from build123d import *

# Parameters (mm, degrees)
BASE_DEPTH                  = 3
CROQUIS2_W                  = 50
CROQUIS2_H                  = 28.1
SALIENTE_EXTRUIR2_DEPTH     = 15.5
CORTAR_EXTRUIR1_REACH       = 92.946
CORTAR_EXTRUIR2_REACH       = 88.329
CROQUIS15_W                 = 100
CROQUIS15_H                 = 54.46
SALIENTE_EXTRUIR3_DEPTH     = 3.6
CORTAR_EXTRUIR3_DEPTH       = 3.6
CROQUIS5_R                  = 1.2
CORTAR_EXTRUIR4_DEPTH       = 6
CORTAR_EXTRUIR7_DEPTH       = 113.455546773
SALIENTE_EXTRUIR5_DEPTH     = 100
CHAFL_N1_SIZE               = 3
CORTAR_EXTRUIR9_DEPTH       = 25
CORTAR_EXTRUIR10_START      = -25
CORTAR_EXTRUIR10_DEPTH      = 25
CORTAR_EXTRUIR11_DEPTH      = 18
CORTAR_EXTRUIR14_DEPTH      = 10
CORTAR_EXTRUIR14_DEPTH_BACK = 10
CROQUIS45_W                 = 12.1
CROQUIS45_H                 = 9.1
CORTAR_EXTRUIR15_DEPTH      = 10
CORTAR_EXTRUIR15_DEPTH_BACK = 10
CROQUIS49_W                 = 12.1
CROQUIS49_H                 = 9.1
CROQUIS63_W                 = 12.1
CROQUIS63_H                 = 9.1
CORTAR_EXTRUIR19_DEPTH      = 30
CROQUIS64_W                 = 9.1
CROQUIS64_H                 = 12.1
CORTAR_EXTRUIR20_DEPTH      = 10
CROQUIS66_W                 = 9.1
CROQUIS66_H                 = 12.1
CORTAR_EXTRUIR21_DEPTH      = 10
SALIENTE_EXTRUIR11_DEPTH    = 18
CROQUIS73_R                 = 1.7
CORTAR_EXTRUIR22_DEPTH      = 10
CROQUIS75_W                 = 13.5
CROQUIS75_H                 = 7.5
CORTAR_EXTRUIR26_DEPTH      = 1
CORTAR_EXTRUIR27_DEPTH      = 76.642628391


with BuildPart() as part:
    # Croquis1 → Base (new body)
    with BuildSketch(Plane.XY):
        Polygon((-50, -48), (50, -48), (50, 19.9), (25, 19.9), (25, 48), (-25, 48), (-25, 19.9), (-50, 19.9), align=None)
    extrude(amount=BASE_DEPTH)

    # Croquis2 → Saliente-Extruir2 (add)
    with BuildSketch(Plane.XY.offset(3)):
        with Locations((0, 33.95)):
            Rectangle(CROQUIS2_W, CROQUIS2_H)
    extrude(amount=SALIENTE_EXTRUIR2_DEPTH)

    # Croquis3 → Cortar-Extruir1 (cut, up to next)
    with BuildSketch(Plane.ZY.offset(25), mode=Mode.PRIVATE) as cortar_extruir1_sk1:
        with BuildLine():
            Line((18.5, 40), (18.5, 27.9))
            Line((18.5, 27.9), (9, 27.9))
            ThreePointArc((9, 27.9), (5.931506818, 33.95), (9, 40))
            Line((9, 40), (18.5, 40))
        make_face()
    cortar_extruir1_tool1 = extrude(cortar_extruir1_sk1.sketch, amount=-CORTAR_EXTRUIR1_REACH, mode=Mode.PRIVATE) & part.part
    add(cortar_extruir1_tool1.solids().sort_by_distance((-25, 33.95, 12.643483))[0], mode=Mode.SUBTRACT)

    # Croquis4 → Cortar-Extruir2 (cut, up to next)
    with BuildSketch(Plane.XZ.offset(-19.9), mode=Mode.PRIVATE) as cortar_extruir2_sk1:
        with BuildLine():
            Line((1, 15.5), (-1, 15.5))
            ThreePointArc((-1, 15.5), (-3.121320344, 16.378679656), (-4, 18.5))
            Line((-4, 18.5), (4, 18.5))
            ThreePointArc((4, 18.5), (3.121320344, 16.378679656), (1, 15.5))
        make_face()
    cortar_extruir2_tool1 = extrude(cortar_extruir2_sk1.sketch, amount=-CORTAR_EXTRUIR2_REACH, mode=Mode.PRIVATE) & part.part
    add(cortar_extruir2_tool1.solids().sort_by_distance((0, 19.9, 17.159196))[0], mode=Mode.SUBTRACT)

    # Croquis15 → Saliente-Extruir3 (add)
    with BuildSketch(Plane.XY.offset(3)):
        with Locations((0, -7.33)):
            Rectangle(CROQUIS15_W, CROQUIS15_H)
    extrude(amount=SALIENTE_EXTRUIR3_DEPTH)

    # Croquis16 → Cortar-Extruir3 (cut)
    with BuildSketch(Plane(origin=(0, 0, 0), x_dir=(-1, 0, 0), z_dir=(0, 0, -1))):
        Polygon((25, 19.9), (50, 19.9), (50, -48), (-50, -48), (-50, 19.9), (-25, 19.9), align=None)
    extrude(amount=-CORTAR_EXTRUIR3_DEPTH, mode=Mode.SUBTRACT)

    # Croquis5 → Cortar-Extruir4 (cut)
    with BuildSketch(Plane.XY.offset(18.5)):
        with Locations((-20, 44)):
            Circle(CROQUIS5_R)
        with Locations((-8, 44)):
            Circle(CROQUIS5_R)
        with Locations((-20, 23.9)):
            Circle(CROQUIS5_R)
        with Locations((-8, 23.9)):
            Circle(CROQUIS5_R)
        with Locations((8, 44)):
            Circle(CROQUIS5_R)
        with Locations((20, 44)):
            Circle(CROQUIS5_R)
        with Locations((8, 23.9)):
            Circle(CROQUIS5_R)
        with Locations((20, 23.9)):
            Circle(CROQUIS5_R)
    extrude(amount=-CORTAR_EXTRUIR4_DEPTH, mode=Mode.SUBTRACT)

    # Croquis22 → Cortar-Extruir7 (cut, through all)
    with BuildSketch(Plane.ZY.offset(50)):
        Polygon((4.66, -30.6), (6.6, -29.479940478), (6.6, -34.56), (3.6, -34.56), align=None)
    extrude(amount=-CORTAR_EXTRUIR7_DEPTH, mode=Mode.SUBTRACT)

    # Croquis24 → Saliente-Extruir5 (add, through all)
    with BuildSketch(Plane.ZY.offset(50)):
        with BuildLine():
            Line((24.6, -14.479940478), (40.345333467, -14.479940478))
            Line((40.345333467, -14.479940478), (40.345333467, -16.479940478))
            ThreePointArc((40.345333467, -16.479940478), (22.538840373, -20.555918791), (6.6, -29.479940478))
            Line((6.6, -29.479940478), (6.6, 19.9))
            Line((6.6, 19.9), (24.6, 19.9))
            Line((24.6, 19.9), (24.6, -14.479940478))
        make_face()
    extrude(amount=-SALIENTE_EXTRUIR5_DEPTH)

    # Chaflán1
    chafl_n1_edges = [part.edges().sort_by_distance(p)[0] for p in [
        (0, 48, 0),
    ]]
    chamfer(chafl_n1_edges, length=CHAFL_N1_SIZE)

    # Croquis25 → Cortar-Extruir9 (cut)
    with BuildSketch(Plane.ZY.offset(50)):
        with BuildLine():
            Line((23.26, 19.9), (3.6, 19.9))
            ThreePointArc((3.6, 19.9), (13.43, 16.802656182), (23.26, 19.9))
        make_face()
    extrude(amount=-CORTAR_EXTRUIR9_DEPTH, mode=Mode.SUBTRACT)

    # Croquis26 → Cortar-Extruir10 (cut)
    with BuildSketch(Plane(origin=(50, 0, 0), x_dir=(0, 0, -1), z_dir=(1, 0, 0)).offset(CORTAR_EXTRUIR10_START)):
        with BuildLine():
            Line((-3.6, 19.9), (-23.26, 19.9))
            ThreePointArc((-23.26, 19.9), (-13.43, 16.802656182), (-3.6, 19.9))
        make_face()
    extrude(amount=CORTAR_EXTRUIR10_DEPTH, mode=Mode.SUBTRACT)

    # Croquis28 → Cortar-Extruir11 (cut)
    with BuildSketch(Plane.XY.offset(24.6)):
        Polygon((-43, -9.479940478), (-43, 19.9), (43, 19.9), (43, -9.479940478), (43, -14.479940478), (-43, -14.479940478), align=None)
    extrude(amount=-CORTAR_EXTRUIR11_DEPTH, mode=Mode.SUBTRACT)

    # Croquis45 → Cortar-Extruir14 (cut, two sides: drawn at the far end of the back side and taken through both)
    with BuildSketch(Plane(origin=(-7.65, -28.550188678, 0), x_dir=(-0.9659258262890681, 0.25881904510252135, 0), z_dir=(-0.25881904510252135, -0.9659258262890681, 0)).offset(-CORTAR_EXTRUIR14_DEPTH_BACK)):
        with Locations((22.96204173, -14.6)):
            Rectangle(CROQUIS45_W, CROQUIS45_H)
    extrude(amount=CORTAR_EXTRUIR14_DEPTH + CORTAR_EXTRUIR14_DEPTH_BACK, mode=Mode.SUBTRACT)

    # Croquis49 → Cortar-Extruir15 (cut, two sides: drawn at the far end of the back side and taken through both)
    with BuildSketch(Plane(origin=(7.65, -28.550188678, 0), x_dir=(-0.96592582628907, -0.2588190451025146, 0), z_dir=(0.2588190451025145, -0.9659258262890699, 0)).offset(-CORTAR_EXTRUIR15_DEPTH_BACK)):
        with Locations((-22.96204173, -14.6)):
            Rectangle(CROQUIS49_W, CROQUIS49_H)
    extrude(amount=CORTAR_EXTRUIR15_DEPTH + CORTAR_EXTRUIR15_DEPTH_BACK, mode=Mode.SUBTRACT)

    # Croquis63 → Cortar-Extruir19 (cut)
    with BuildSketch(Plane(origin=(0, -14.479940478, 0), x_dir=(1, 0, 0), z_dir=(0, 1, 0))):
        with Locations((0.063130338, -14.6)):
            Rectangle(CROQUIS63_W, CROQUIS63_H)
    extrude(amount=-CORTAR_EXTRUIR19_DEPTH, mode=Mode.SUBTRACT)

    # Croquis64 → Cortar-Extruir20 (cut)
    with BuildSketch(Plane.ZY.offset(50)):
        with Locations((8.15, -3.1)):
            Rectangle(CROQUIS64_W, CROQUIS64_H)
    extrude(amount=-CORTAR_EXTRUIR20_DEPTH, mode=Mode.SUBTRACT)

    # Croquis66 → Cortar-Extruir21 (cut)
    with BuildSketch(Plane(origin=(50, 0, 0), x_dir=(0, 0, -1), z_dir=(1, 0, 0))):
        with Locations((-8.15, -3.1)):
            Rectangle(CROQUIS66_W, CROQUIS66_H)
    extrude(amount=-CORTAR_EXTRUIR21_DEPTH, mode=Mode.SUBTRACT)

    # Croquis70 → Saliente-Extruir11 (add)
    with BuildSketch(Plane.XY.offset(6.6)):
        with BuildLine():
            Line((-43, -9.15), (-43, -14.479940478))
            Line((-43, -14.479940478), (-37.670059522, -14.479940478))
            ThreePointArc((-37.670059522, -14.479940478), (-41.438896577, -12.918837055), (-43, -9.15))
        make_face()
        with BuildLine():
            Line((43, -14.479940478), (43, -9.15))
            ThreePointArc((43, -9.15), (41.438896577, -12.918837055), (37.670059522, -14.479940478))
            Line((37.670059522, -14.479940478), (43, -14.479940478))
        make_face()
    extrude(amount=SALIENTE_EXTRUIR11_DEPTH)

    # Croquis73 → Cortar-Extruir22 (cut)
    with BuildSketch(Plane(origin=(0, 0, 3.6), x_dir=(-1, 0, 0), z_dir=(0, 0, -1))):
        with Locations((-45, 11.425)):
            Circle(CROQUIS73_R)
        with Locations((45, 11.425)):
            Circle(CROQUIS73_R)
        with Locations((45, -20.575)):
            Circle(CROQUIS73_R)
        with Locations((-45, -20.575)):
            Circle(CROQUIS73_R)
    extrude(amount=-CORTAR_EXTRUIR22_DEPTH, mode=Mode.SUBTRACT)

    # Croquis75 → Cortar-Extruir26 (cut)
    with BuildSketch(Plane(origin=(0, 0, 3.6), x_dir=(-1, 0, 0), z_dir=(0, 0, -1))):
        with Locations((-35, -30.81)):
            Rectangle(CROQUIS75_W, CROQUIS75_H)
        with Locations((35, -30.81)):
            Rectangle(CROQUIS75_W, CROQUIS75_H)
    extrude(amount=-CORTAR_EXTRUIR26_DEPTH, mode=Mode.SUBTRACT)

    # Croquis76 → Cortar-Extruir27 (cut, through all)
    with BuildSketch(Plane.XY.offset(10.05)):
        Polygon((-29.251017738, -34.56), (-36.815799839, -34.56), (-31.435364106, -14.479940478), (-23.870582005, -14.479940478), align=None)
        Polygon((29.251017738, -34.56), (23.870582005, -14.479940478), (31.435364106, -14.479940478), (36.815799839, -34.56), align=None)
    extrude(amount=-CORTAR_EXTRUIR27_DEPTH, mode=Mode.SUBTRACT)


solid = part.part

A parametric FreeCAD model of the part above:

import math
import FreeCAD as App
import Part
import Sketcher
Q = App.Units.Quantity


def edges_at(feature, points):
    """Names of the edges that pass closest to the given points."""
    edges = feature.Shape.Edges
    near = lambda p: min(range(len(edges)), key=lambda i: edges[i].distToShape(Part.Vertex(*p))[0])
    return sorted({f"Edge{near(p) + 1}" for p in points})


def add_polygon(sketch, points):
    """Adds a closed chain of lines whose ends are joined by coincident constraints."""
    first, n = sketch.GeometryCount, len(points)
    for a, b in zip(points, points[1:] + points[:1]):
        sketch.addGeometry(Part.LineSegment(App.Vector(*a, 0), App.Vector(*b, 0)), False)
    for i in range(n):
        sketch.addConstraint(Sketcher.Constraint("Coincident", first + i, 2, first + (i + 1) % n, 1))

doc = App.newDocument("Part")
params = doc.addObject("Spreadsheet::Sheet", "Params")
for row, (alias, value) in enumerate([
    ("sketch1_width", "100 mm"),
    ("sketch1_width2", "25 mm"),
    ("sketch1_height", "67.9 mm"),
    ("sketch1_height2", "28.1 mm"),
    ("pad1_length", "3 mm"),
    ("sketch2_width", "50 mm"),
    ("sketch2_height", "28.1 mm"),
    ("pad2_length", "15.5 mm"),
    ("sketch3_width", "12.1 mm"),
    ("sketch3_height", "9.5 mm"),
    ("sketch4_radius", "3 mm"),
    ("sketch4_width", "2 mm"),
    ("sketch5_width", "100 mm"),
    ("sketch5_height", "54.46 mm"),
    ("pad3_length", "3.6 mm"),
    ("sketch6_width", "100 mm"),
    ("sketch6_height", "67.9 mm"),
    ("pocket3_length", "3.6 mm"),
    ("sketch7_diameter", "2.4 mm"),
    ("pocket4_length", "6 mm"),
    ("sketch8_height", "3 mm"),
    ("sketch9_width", "2 mm"),
    ("sketch9_height", "18 mm"),
    ("pad4_length", "100 mm"),
    ("chamfer_size", "3 mm"),
    ("sketch10_height", "19.66 mm"),
    ("pocket6_length", "25 mm"),
    ("sketch11_height", "19.66 mm"),
    ("pocket7_length", "25 mm"),
    ("sketch12_width", "86 mm"),
    ("pocket8_length", "18 mm"),
    ("sketch13_width", "12.1 mm"),
    ("sketch13_height", "9.1 mm"),
    ("pocket9_length", "10 mm"),
    ("pocket9_length2", "10 mm"),
    ("sketch14_width", "12.1 mm"),
    ("sketch14_height", "9.1 mm"),
    ("pocket10_length", "10 mm"),
    ("pocket10_length2", "10 mm"),
    ("sketch15_width", "12.1 mm"),
    ("sketch15_height", "9.1 mm"),
    ("pocket11_length", "30 mm"),
    ("sketch16_width", "12.1 mm"),
    ("sketch16_height", "9.1 mm"),
    ("pocket12_length", "10 mm"),
    ("sketch17_width", "12.1 mm"),
    ("sketch17_height", "9.1 mm"),
    ("pocket13_length", "10 mm"),
    ("pad5_length", "18 mm"),
    ("sketch19_diameter", "3.4 mm"),
    ("pocket14_length", "10 mm"),
    ("sketch20_width", "13.5 mm"),
    ("sketch20_height", "7.5 mm"),
    ("pocket15_length", "1 mm"),
], start=1):
    params.set(f"A{row}", alias)
    params.set(f"B{row}", "=" + value)
    params.setAlias(f"B{row}", alias)

body = doc.addObject("PartDesign::Body", "Body")

sketch1 = body.newObject("Sketcher::SketchObject", "Sketch")
sketch1.AttachmentSupport = (doc.getObject("XY_Plane"), [""])
sketch1.MapMode = "FlatFace"
add_polygon(sketch1, [(-50, -48), (50, -48), (50, 20), (25, 20), (25, 48), (-25, 48), (-25, 20), (-50, 20)])
sketch1.addConstraint(Sketcher.Constraint("Horizontal", 0))
sketch1.addConstraint(Sketcher.Constraint("Vertical", 1))
sketch1.addConstraint(Sketcher.Constraint("Horizontal", 2))
sketch1.addConstraint(Sketcher.Constraint("Vertical", 3))
sketch1.addConstraint(Sketcher.Constraint("Horizontal", 4))
sketch1.addConstraint(Sketcher.Constraint("Vertical", 5))
sketch1.addConstraint(Sketcher.Constraint("Horizontal", 6))
sketch1.addConstraint(Sketcher.Constraint("Vertical", 7))
sketch1.addConstraint(Sketcher.Constraint("Symmetric", 2, 2, 5, 2, -2))
sketch1.addConstraint(Sketcher.Constraint("Equal", 2, 6))
sketch1.addConstraint(Sketcher.Constraint("DistanceX", 0, 1, 0, 2, Q("100 mm")))
sketch1.addConstraint(Sketcher.Constraint("DistanceX", 2, 2, 2, 1, Q("25 mm")))
sketch1.addConstraint(Sketcher.Constraint("DistanceY", 1, 1, 1, 2, Q("67.9 mm")))
sketch1.addConstraint(Sketcher.Constraint("DistanceY", 3, 1, 3, 2, Q("28.1 mm")))
sketch1.addConstraint(Sketcher.Constraint("DistanceY", 0, 2, -1, 1, Q("48 mm")))
sketch1.setExpression("Constraints[18]", "Params.sketch1_width")
sketch1.setExpression("Constraints[19]", "Params.sketch1_width2")
sketch1.setExpression("Constraints[20]", "Params.sketch1_height")
sketch1.setExpression("Constraints[21]", "Params.sketch1_height2")
pad1 = body.newObject("PartDesign::Pad", "Pad")
pad1.Profile = sketch1
pad1.setExpression("Length", "Params.pad1_length")

sketch2 = body.newObject("Sketcher::SketchObject", "Sketch001")
sketch2.AttachmentSupport = (doc.getObject("XY_Plane"), [""])
sketch2.MapMode = "FlatFace"
sketch2.AttachmentOffset = App.Placement(App.Vector(0, 0, 3), App.Rotation())
add_polygon(sketch2, [(-25, 48), (-25, 20), (25, 20), (25, 48)])
sketch2.addConstraint(Sketcher.Constraint("Vertical", 0))
sketch2.addConstraint(Sketcher.Constraint("Horizontal", 1))
sketch2.addConstraint(Sketcher.Constraint("Vertical", 2))
sketch2.addConstraint(Sketcher.Constraint("Horizontal", 3))
sketch2.addConstraint(Sketcher.Constraint("DistanceX", 1, 1, 1, 2, Q("50 mm")))
sketch2.addConstraint(Sketcher.Constraint("DistanceY", 0, 2, 0, 1, Q("28.1 mm")))
sketch2.addConstraint(Sketcher.Constraint("DistanceX", 0, 2, -1, 1, Q("25 mm")))
sketch2.addConstraint(Sketcher.Constraint("DistanceY", -1, 1, 2, 2, Q("48 mm")))
sketch2.setExpression("Constraints[8]", "Params.sketch2_width")
sketch2.setExpression("Constraints[9]", "Params.sketch2_height")
pad2 = body.newObject("PartDesign::Pad", "Pad001")
pad2.Profile = sketch2
pad2.setExpression("Length", "Params.pad2_length")

sketch3 = body.newObject("Sketcher::SketchObject", "Sketch002")
sketch3.AttachmentSupport = (doc.getObject("YZ_Plane"), [""])
sketch3.MapMode = "FlatFace"
sketch3.AttachmentOffset = App.Placement(App.Vector(0, 0, -25), App.Rotation())
sketch3.addGeometry(Part.LineSegment(App.Vector(28, 18, 0), App.Vector(40, 18, 0)), False)
sketch3.addGeometry(Part.LineSegment(App.Vector(40, 18, 0), App.Vector(40, 9, 0)), False)
sketch3.addGeometry(Part.ArcOfCircle(Part.Circle(App.Vector(34, 13, 0), App.Vector(0, 0, 1), 7), math.radians(-144), math.radians(-36)), False)
sketch3.addGeometry(Part.LineSegment(App.Vector(28, 9, 0), App.Vector(28, 18, 0)), False)
sketch3.addConstraint(Sketcher.Constraint("Coincident", 0, 2, 1, 1))
sketch3.addConstraint(Sketcher.Constraint("Coincident", 1, 2, 2, 2))
sketch3.addConstraint(Sketcher.Constraint("Coincident", 2, 1, 3, 1))
sketch3.addConstraint(Sketcher.Constraint("Coincident", 3, 2, 0, 1))
sketch3.addConstraint(Sketcher.Constraint("Horizontal", 0))
sketch3.addConstraint(Sketcher.Constraint("Vertical", 1))
sketch3.addConstraint(Sketcher.Constraint("Vertical", 3))
sketch3.addConstraint(Sketcher.Constraint("Horizontal", 1, 2, 2, 1))
sketch3.addConstraint(Sketcher.Constraint("DistanceX", 0, 1, 0, 2, Q("12.1 mm")))
sketch3.addConstraint(Sketcher.Constraint("DistanceY", 1, 2, 1, 1, Q("9.5 mm")))
sketch3.addConstraint(Sketcher.Constraint("DistanceX", -1, 1, 0, 2, Q("40 mm")))
sketch3.addConstraint(Sketcher.Constraint("DistanceY", -1, 1, 1, 2, Q("9 mm")))
sketch3.addConstraint(Sketcher.Constraint("DistanceY", -1, 1, 2, 3, Q("13.43 mm")))
sketch3.setExpression("Constraints[8]", "Params.sketch3_width")
sketch3.setExpression("Constraints[9]", "Params.sketch3_height")
pocket1 = body.newObject("PartDesign::Pocket", "Pocket")
pocket1.Profile = sketch3
pocket1.Type = "UpToFirst"
pocket1.Reversed = True

sketch4 = body.newObject("Sketcher::SketchObject", "Sketch003")
sketch4.AttachmentSupport = (doc.getObject("XZ_Plane"), [""])
sketch4.MapMode = "FlatFace"
sketch4.AttachmentOffset = App.Placement(App.Vector(0, 0, -19.9), App.Rotation())
sketch4.addGeometry(Part.LineSegment(App.Vector(-1, 15.5, 0), App.Vector(1, 15.5, 0)), False)
sketch4.addGeometry(Part.ArcOfCircle(Part.Circle(App.Vector(1, 18.5, 0), App.Vector(0, 0, 1), 3), math.radians(-90), math.radians(0)), False)
sketch4.addGeometry(Part.LineSegment(App.Vector(4, 18.5, 0), App.Vector(-4, 18.5, 0)), False)
sketch4.addGeometry(Part.ArcOfCircle(Part.Circle(App.Vector(-1, 18.5, 0), App.Vector(0, 0, 1), 3), math.radians(180), math.radians(270)), False)
sketch4.addConstraint(Sketcher.Constraint("Tangent", 0, 2, 1, 1))
sketch4.addConstraint(Sketcher.Constraint("Coincident", 1, 2, 2, 1))
sketch4.addConstraint(Sketcher.Constraint("Coincident", 2, 2, 3, 1))
sketch4.addConstraint(Sketcher.Constraint("Tangent", 3, 2, 0, 1))
sketch4.addConstraint(Sketcher.Constraint("Horizontal", 0))
sketch4.addConstraint(Sketcher.Constraint("Horizontal", 2))
sketch4.addConstraint(Sketcher.Constraint("Equal", 1, 3))
sketch4.addConstraint(Sketcher.Constraint("Horizontal", 3, 3, 1, 2))
sketch4.addConstraint(Sketcher.Constraint("Radius", 1, Q("3 mm")))
sketch4.addConstraint(Sketcher.Constraint("DistanceX", 0, 1, 0, 2, Q("2 mm")))
sketch4.addConstraint(Sketcher.Constraint("DistanceX", -1, 1, 1, 3, Q("1 mm")))
sketch4.addConstraint(Sketcher.Constraint("DistanceY", -1, 1, 1, 3, Q("18.5 mm")))
sketch4.setExpression("Constraints[8]", "Params.sketch4_radius")
sketch4.setExpression("Constraints[9]", "Params.sketch4_width")
pocket2 = body.newObject("PartDesign::Pocket", "Pocket001")
pocket2.Profile = sketch4
pocket2.Type = "UpToFirst"

sketch5 = body.newObject("Sketcher::SketchObject", "Sketch004")
sketch5.AttachmentSupport = (doc.getObject("XY_Plane"), [""])
sketch5.MapMode = "FlatFace"
sketch5.AttachmentOffset = App.Placement(App.Vector(0, 0, 3), App.Rotation())
add_polygon(sketch5, [(-50, 20), (-50, -35), (50, -35), (50, 20)])
sketch5.addConstraint(Sketcher.Constraint("Vertical", 0))
sketch5.addConstraint(Sketcher.Constraint("Horizontal", 1))
sketch5.addConstraint(Sketcher.Constraint("Vertical", 2))
sketch5.addConstraint(Sketcher.Constraint("Horizontal", 3))
sketch5.addConstraint(Sketcher.Constraint("DistanceX", 1, 1, 1, 2, Q("100 mm")))
sketch5.addConstraint(Sketcher.Constraint("DistanceX", 0, 2, -1, 1, Q("50 mm")))
sketch5.addConstraint(Sketcher.Constraint("DistanceY", 0, 2, 0, 1, Q("54.46 mm")))
sketch5.addConstraint(Sketcher.Constraint("DistanceY", -1, 1, 2, 2, Q("19.9 mm")))
sketch5.setExpression("Constraints[8]", "Params.sketch5_width")
sketch5.setExpression("Constraints[10]", "Params.sketch5_height")
pad3 = body.newObject("PartDesign::Pad", "Pad002")
pad3.Profile = sketch5
pad3.setExpression("Length", "Params.pad3_length")

sketch6 = body.newObject("Sketcher::SketchObject", "Sketch005")
sketch6.AttachmentSupport = (doc.getObject("XY_Plane"), [""])
sketch6.MapMode = "FlatFace"
add_polygon(sketch6, [(-50, 20), (50, 20), (50, -48), (-50, -48)])
sketch6.addConstraint(Sketcher.Constraint("Horizontal", 0))
sketch6.addConstraint(Sketcher.Constraint("Vertical", 1))
sketch6.addConstraint(Sketcher.Constraint("Horizontal", 2))
sketch6.addConstraint(Sketcher.Constraint("Vertical", 3))
sketch6.addConstraint(Sketcher.Constraint("DistanceX", 0, 1, 0, 2, Q("100 mm")))
sketch6.addConstraint(Sketcher.Constraint("DistanceY", 1, 2, 1, 1, Q("67.9 mm")))
sketch6.addConstraint(Sketcher.Constraint("DistanceX", -1, 1, 0, 2, Q("50 mm")))
sketch6.addConstraint(Sketcher.Constraint("DistanceY", 1, 2, -1, 1, Q("48 mm")))
sketch6.setExpression("Constraints[8]", "Params.sketch6_width")
sketch6.setExpression("Constraints[9]", "Params.sketch6_height")
pocket3 = body.newObject("PartDesign::Pocket", "Pocket002")
pocket3.Profile = sketch6
pocket3.setExpression("Length", "Params.pocket3_length")
pocket3.Reversed = True

sketch7 = body.newObject("Sketcher::SketchObject", "Sketch006")
sketch7.AttachmentSupport = (doc.getObject("XY_Plane"), [""])
sketch7.MapMode = "FlatFace"
sketch7.AttachmentOffset = App.Placement(App.Vector(0, 0, 18.5), App.Rotation())
sketch7.addGeometry(Part.Circle(App.Vector(-20, 44, 0), App.Vector(0, 0, 1), 1.2), False)
sketch7.addGeometry(Part.Circle(App.Vector(-8, 44, 0), App.Vector(0, 0, 1), 1.2), False)
sketch7.addGeometry(Part.Circle(App.Vector(-20, 23.9, 0), App.Vector(0, 0, 1), 1.2), False)
sketch7.addGeometry(Part.Circle(App.Vector(-8, 23.9, 0), App.Vector(0, 0, 1), 1.2), False)
sketch7.addGeometry(Part.Circle(App.Vector(8, 44, 0), App.Vector(0, 0, 1), 1.2), False)
sketch7.addGeometry(Part.Circle(App.Vector(20, 44, 0), App.Vector(0, 0, 1), 1.2), False)
sketch7.addGeometry(Part.Circle(App.Vector(8, 23.9, 0), App.Vector(0, 0, 1), 1.2), False)
sketch7.addGeometry(Part.Circle(App.Vector(20, 23.9, 0), App.Vector(0, 0, 1), 1.2), False)
sketch7.addConstraint(Sketcher.Constraint("Equal", 0, 1))
sketch7.addConstraint(Sketcher.Constraint("Equal", 1, 2))
sketch7.addConstraint(Sketcher.Constraint("Equal", 2, 3))
sketch7.addConstraint(Sketcher.Constraint("Equal", 3, 4))
sketch7.addConstraint(Sketcher.Constraint("Equal", 4, 5))
sketch7.addConstraint(Sketcher.Constraint("Equal", 5, 6))
sketch7.addConstraint(Sketcher.Constraint("Equal", 6, 7))
sketch7.addConstraint(Sketcher.Constraint("Symmetric", 1, 3, 4, 3, -2))
sketch7.addConstraint(Sketcher.Constraint("Symmetric", 0, 3, 5, 3, -2))
sketch7.addConstraint(Sketcher.Constraint("Symmetric", 3, 3, 6, 3, -2))
sketch7.addConstraint(Sketcher.Constraint("Symmetric", 2, 3, 7, 3, -2))
sketch7.addConstraint(Sketcher.Constraint("Horizontal", 0, 3, 1, 3))
sketch7.addConstraint(Sketcher.Constraint("Horizontal", 2, 3, 3, 3))
sketch7.addConstraint(Sketcher.Constraint("Vertical", 0, 3, 2, 3))
sketch7.addConstraint(Sketcher.Constraint("Vertical", 1, 3, 3, 3))
sketch7.addConstraint(Sketcher.Constraint("Diameter", 0, Q("2.4 mm")))
sketch7.addConstraint(Sketcher.Constraint("DistanceX", 0, 3, -1, 1, Q("20 mm")))
sketch7.addConstraint(Sketcher.Constraint("DistanceY", -1, 1, 0, 3, Q("44 mm")))
sketch7.addConstraint(Sketcher.Constraint("DistanceX", 1, 3, -1, 1, Q("8 mm")))
sketch7.addConstraint(Sketcher.Constraint("DistanceY", -1, 1, 2, 3, Q("23.9 mm")))
sketch7.setExpression("Constraints[15]", "Params.sketch7_diameter")
pocket4 = body.newObject("PartDesign::Pocket", "Pocket003")
pocket4.Profile = sketch7
pocket4.setExpression("Length", "Params.pocket4_length")

sketch8 = body.newObject("Sketcher::SketchObject", "Sketch007")
sketch8.AttachmentSupport = (doc.getObject("YZ_Plane"), [""])
sketch8.MapMode = "FlatFace"
sketch8.AttachmentOffset = App.Placement(App.Vector(0, 0, -50), App.Rotation())
add_polygon(sketch8, [(-29.5, 6.6), (-30.6, 4.7), (-34.6, 3.6), (-34.6, 6.6)])
sketch8.addConstraint(Sketcher.Constraint("Vertical", 2))
sketch8.addConstraint(Sketcher.Constraint("Horizontal", 3))
sketch8.addConstraint(Sketcher.Constraint("DistanceY", 2, 1, 2, 2, Q("3 mm")))
sketch8.addConstraint(Sketcher.Constraint("Angle", 0, Q("-120 deg")))
sketch8.addConstraint(Sketcher.Constraint("DistanceX", 0, 2, -1, 1, Q("30.6 mm")))
sketch8.addConstraint(Sketcher.Constraint("DistanceY", -1, 1, 1, 2, Q("3.6 mm")))
sketch8.addConstraint(Sketcher.Constraint("DistanceY", -1, 1, 0, 2, Q("4.66 mm")))
sketch8.addConstraint(Sketcher.Constraint("DistanceX", 1, 2, -1, 1, Q("34.56 mm")))
sketch8.setExpression("Constraints[6]", "Params.sketch8_height")
pocket5 = body.newObject("PartDesign::Pocket", "Pocket004")
pocket5.Profile = sketch8
pocket5.Type = "ThroughAll"
pocket5.Reversed = True

sketch9 = body.newObject("Sketcher::SketchObject", "Sketch008")
sketch9.AttachmentSupport = (doc.getObject("YZ_Plane"), [""])
sketch9.MapMode = "FlatFace"
sketch9.AttachmentOffset = App.Placement(App.Vector(0, 0, -50), App.Rotation())
sketch9.addGeometry(Part.LineSegment(App.Vector(-14.5, 40.3, 0), App.Vector(-14.5, 24.6, 0)), False)
sketch9.addGeometry(Part.LineSegment(App.Vector(-14.5, 24.6, 0), App.Vector(19.9, 24.6, 0)), False)
sketch9.addGeometry(Part.LineSegment(App.Vector(19.9, 24.6, 0), App.Vector(19.9, 6.6, 0)), False)
sketch9.addGeometry(Part.LineSegment(App.Vector(19.9, 6.6, 0), App.Vector(-29.5, 6.6, 0)), False)
sketch9.addGeometry(Part.ArcOfCircle(Part.Circle(App.Vector(-80.5, 45.6, 0), App.Vector(0, 0, 1), 64.2), math.radians(-37), math.radians(-5)), False)
sketch9.addGeometry(Part.LineSegment(App.Vector(-16.5, 40.3, 0), App.Vector(-14.5, 40.3, 0)), False)
sketch9.addConstraint(Sketcher.Constraint("Coincident", 0, 2, 1, 1))
sketch9.addConstraint(Sketcher.Constraint("Coincident", 1, 2, 2, 1))
sketch9.addConstraint(Sketcher.Constraint("Coincident", 2, 2, 3, 1))
sketch9.addConstraint(Sketcher.Constraint("Coincident", 3, 2, 4, 1))
sketch9.addConstraint(Sketcher.Constraint("Coincident", 4, 2, 5, 1))
sketch9.addConstraint(Sketcher.Constraint("Coincident", 5, 2, 0, 1))
sketch9.addConstraint(Sketcher.Constraint("Vertical", 0))
sketch9.addConstraint(Sketcher.Constraint("Horizontal", 1))
sketch9.addConstraint(Sketcher.Constraint("Vertical", 2))
sketch9.addConstraint(Sketcher.Constraint("Horizontal", 3))
sketch9.addConstraint(Sketcher.Constraint("Horizontal", 5))
sketch9.addConstraint(Sketcher.Constraint("DistanceX", 5, 1, 5, 2, Q("2 mm")))
sketch9.addConstraint(Sketcher.Constraint("DistanceY", 2, 2, 2, 1, Q("18 mm")))
sketch9.addConstraint(Sketcher.Constraint("DistanceX", 3, 2, 0, 2, Q("15 mm")))
sketch9.addConstraint(Sketcher.Constraint("DistanceY", -1, 1, 0, 2, Q("24.6 mm")))
sketch9.addConstraint(Sketcher.Constraint("DistanceX", -1, 1, 1, 2, Q("19.9 mm")))
sketch9.addConstraint(Sketcher.Constraint("Radius", 4, Q("64.2276 mm")))
sketch9.addConstraint(Sketcher.Constraint("DistanceX", 1, 1, 1, 2, Q("34.37994 mm")))
sketch9.addConstraint(Sketcher.Constraint("DistanceY", 4, 2, 4, 3, Q("5.282399 mm")))
sketch9.setExpression("Constraints[11]", "Params.sketch9_width")
sketch9.setExpression("Constraints[12]", "Params.sketch9_height")
pad4 = body.newObject("PartDesign::Pad", "Pad003")
pad4.Profile = sketch9
pad4.setExpression("Length", "Params.pad4_length")
doc.recompute()

chamfer = body.newObject("PartDesign::Chamfer", "Chamfer")
chamfer.Base = (pad4, edges_at(pad4, [(0, 48, 0)]))
chamfer.setExpression("Size", "Params.chamfer_size")

sketch10 = body.newObject("Sketcher::SketchObject", "Sketch009")
sketch10.AttachmentSupport = (doc.getObject("YZ_Plane"), [""])
sketch10.MapMode = "FlatFace"
sketch10.AttachmentOffset = App.Placement(App.Vector(0, 0, -50), App.Rotation())
sketch10.addGeometry(Part.LineSegment(App.Vector(20, 23, 0), App.Vector(20, 4, 0)), False)
sketch10.addGeometry(Part.ArcOfCircle(Part.Circle(App.Vector(34, 13, 0), App.Vector(0, 0, 1), 17), math.radians(145), math.radians(215)), False)
sketch10.addConstraint(Sketcher.Constraint("Coincident", 0, 1, 1, 1))
sketch10.addConstraint(Sketcher.Constraint("Coincident", 1, 2, 0, 2))
sketch10.addConstraint(Sketcher.Constraint("Vertical", 0))
sketch10.addConstraint(Sketcher.Constraint("DistanceY", 0, 2, 0, 1, Q("19.66 mm")))
sketch10.addConstraint(Sketcher.Constraint("DistanceX", -1, 1, 0, 1, Q("19.9 mm")))
sketch10.addConstraint(Sketcher.Constraint("DistanceY", -1, 1, 1, 2, Q("3.6 mm")))
sketch10.addConstraint(Sketcher.Constraint("DistanceX", -1, 1, 1, 3, Q("33.95 mm")))
sketch10.setExpression("Constraints[3]", "Params.sketch10_height")
pocket6 = body.newObject("PartDesign::Pocket", "Pocket005")
pocket6.Profile = sketch10
pocket6.setExpression("Length", "Params.pocket6_length")
pocket6.Reversed = True

sketch11 = body.newObject("Sketcher::SketchObject", "Sketch010")
sketch11.AttachmentSupport = (doc.getObject("YZ_Plane"), [""])
sketch11.MapMode = "FlatFace"
sketch11.AttachmentOffset = App.Placement(App.Vector(0, 0, 25), App.Rotation())
sketch11.addGeometry(Part.LineSegment(App.Vector(20, 4, 0), App.Vector(20, 23, 0)), False)
sketch11.addGeometry(Part.ArcOfCircle(Part.Circle(App.Vector(34, 13, 0), App.Vector(0, 0, 1), 17), math.radians(145), math.radians(215)), False)
sketch11.addConstraint(Sketcher.Constraint("Coincident", 0, 1, 1, 2))
sketch11.addConstraint(Sketcher.Constraint("Coincident", 1, 1, 0, 2))
sketch11.addConstraint(Sketcher.Constraint("Vertical", 0))
sketch11.addConstraint(Sketcher.Constraint("DistanceY", 0, 1, 0, 2, Q("19.66 mm")))
sketch11.addConstraint(Sketcher.Constraint("DistanceX", -1, 1, 0, 1, Q("19.9 mm")))
sketch11.addConstraint(Sketcher.Constraint("DistanceY", -1, 1, 0, 1, Q("3.6 mm")))
sketch11.addConstraint(Sketcher.Constraint("DistanceX", -1, 1, 1, 3, Q("33.95 mm")))
sketch11.setExpression("Constraints[3]", "Params.sketch11_height")
pocket7 = body.newObject("PartDesign::Pocket", "Pocket006")
pocket7.Profile = sketch11
pocket7.setExpression("Length", "Params.pocket7_length")
pocket7.Reversed = True

sketch12 = body.newObject("Sketcher::SketchObject", "Sketch011")
sketch12.AttachmentSupport = (doc.getObject("XY_Plane"), [""])
sketch12.MapMode = "FlatFace"
sketch12.AttachmentOffset = App.Placement(App.Vector(0, 0, 24.6), App.Rotation())
add_polygon(sketch12, [(-43, 20), (-43, -14), (43, -14), (43, 20)])
sketch12.addConstraint(Sketcher.Constraint("Vertical", 0))
sketch12.addConstraint(Sketcher.Constraint("Horizontal", 1))
sketch12.addConstraint(Sketcher.Constraint("Vertical", 2))
sketch12.addConstraint(Sketcher.Constraint("Horizontal", 3))
sketch12.addConstraint(Sketcher.Constraint("DistanceX", 1, 1, 1, 2, Q("86 mm")))
sketch12.addConstraint(Sketcher.Constraint("DistanceX", 0, 2, -1, 1, Q("43 mm")))
sketch12.addConstraint(Sketcher.Constraint("DistanceY", -1, 1, 2, 2, Q("19.9 mm")))
sketch12.addConstraint(Sketcher.Constraint("DistanceY", 0, 2, 0, 1, Q("34.37994 mm")))
sketch12.setExpression("Constraints[8]", "Params.sketch12_width")
pocket8 = body.newObject("PartDesign::Pocket", "Pocket007")
pocket8.Profile = sketch12
pocket8.setExpression("Length", "Params.pocket8_length")

sketch13 = body.newObject("Sketcher::SketchObject", "Sketch012")
sketch13.Placement = App.Placement(App.Vector(-7.65, -28.550189, 0), App.Rotation(App.Vector(-0.965925826, 0.258819045, 0), App.Vector(0, 0, -0.999999999), App.Vector(-0.258819045, -0.965925826, 0), "ZXY"))
add_polygon(sketch13, [(17, -10), (17, -19), (29, -19), (29, -10)])
sketch13.addConstraint(Sketcher.Constraint("Vertical", 0))
sketch13.addConstraint(Sketcher.Constraint("Horizontal", 1))
sketch13.addConstraint(Sketcher.Constraint("Vertical", 2))
sketch13.addConstraint(Sketcher.Constraint("Horizontal", 3))
sketch13.addConstraint(Sketcher.Constraint("DistanceX", 1, 1, 1, 2, Q("12.1 mm")))
sketch13.addConstraint(Sketcher.Constraint("DistanceY", 0, 2, 0, 1, Q("9.1 mm")))
sketch13.addConstraint(Sketcher.Constraint("DistanceY", 0, 2, -1, 1, Q("19.15 mm")))
sketch13.addConstraint(Sketcher.Constraint("DistanceX", -1, 1, 0, 2, Q("16.912042 mm")))
sketch13.setExpression("Constraints[8]", "Params.sketch13_width")
sketch13.setExpression("Constraints[9]", "Params.sketch13_height")
pocket9 = body.newObject("PartDesign::Pocket", "Pocket008")
pocket9.Profile = sketch13
pocket9.Type = "TwoLengths"
pocket9.setExpression("Length", "Params.pocket9_length")
pocket9.setExpression("Length2", "Params.pocket9_length2")
pocket9.Reversed = True

sketch14 = body.newObject("Sketcher::SketchObject", "Sketch013")
sketch14.Placement = App.Placement(App.Vector(7.65, -28.550189, 0), App.Rotation(App.Vector(-0.965925826, -0.258819045, 0), App.Vector(0, 0, -0.999999999), App.Vector(0.258819045, -0.965925826, 0), "ZXY"))
add_polygon(sketch14, [(-29, -10), (-29, -19), (-17, -19), (-17, -10)])
sketch14.addConstraint(Sketcher.Constraint("Vertical", 0))
sketch14.addConstraint(Sketcher.Constraint("Horizontal", 1))
sketch14.addConstraint(Sketcher.Constraint("Vertical", 2))
sketch14.addConstraint(Sketcher.Constraint("Horizontal", 3))
sketch14.addConstraint(Sketcher.Constraint("DistanceX", 1, 1, 1, 2, Q("12.1 mm")))
sketch14.addConstraint(Sketcher.Constraint("DistanceY", 0, 2, 0, 1, Q("9.1 mm")))
sketch14.addConstraint(Sketcher.Constraint("DistanceY", 0, 2, -1, 1, Q("19.15 mm")))
sketch14.addConstraint(Sketcher.Constraint("DistanceX", 0, 2, -1, 1, Q("29.012042 mm")))
sketch14.setExpression("Constraints[8]", "Params.sketch14_width")
sketch14.setExpression("Constraints[9]", "Params.sketch14_height")
pocket10 = body.newObject("PartDesign::Pocket", "Pocket009")
pocket10.Profile = sketch14
pocket10.Type = "TwoLengths"
pocket10.setExpression("Length", "Params.pocket10_length")
pocket10.setExpression("Length2", "Params.pocket10_length2")
pocket10.Reversed = True

sketch15 = body.newObject("Sketcher::SketchObject", "Sketch014")
sketch15.AttachmentSupport = (doc.getObject("XZ_Plane"), [""])
sketch15.MapMode = "FlatFace"
sketch15.AttachmentOffset = App.Placement(App.Vector(0, 0, 14.47994), App.Rotation())
add_polygon(sketch15, [(-6, 10), (-6, 19), (6, 19), (6, 10)])
sketch15.addConstraint(Sketcher.Constraint("Vertical", 0))
sketch15.addConstraint(Sketcher.Constraint("Horizontal", 1))
sketch15.addConstraint(Sketcher.Constraint("Vertical", 2))
sketch15.addConstraint(Sketcher.Constraint("Horizontal", 3))
sketch15.addConstraint(Sketcher.Constraint("DistanceX", 1, 1, 1, 2, Q("12.1 mm")))
sketch15.addConstraint(Sketcher.Constraint("DistanceY", 0, 1, 0, 2, Q("9.1 mm")))
sketch15.addConstraint(Sketcher.Constraint("DistanceY", -1, 1, 0, 2, Q("19.15 mm")))
sketch15.addConstraint(Sketcher.Constraint("DistanceX", 0, 2, -1, 1, Q("5.98687 mm")))
sketch15.setExpression("Constraints[8]", "Params.sketch15_width")
sketch15.setExpression("Constraints[9]", "Params.sketch15_height")
pocket11 = body.newObject("PartDesign::Pocket", "Pocket010")
pocket11.Profile = sketch15
pocket11.setExpression("Length", "Params.pocket11_length")
pocket11.Reversed = True

sketch16 = body.newObject("Sketcher::SketchObject", "Sketch015")
sketch16.AttachmentSupport = (doc.getObject("YZ_Plane"), [""])
sketch16.MapMode = "FlatFace"
sketch16.AttachmentOffset = App.Placement(App.Vector(0, 0, -50), App.Rotation())
add_polygon(sketch16, [(3, 4), (-9, 4), (-9, 13), (3, 13)])
sketch16.addConstraint(Sketcher.Constraint("Horizontal", 0))
sketch16.addConstraint(Sketcher.Constraint("Vertical", 1))
sketch16.addConstraint(Sketcher.Constraint("Horizontal", 2))
sketch16.addConstraint(Sketcher.Constraint("Vertical", 3))
sketch16.addConstraint(Sketcher.Constraint("DistanceX", 0, 2, 0, 1, Q("12.1 mm")))
sketch16.addConstraint(Sketcher.Constraint("DistanceY", 1, 1, 1, 2, Q("9.1 mm")))
sketch16.addConstraint(Sketcher.Constraint("DistanceY", -1, 1, 0, 2, Q("3.6 mm")))
sketch16.addConstraint(Sketcher.Constraint("DistanceX", 0, 2, -1, 1, Q("9.15 mm")))
sketch16.setExpression("Constraints[8]", "Params.sketch16_width")
sketch16.setExpression("Constraints[9]", "Params.sketch16_height")
pocket12 = body.newObject("PartDesign::Pocket", "Pocket011")
pocket12.Profile = sketch16
pocket12.setExpression("Length", "Params.pocket12_length")
pocket12.Reversed = True

sketch17 = body.newObject("Sketcher::SketchObject", "Sketch016")
sketch17.AttachmentSupport = (doc.getObject("YZ_Plane"), [""])
sketch17.MapMode = "FlatFace"
sketch17.AttachmentOffset = App.Placement(App.Vector(0, 0, 50), App.Rotation())
add_polygon(sketch17, [(3, 13), (-9, 13), (-9, 4), (3, 4)])
sketch17.addConstraint(Sketcher.Constraint("Horizontal", 0))
sketch17.addConstraint(Sketcher.Constraint("Vertical", 1))
sketch17.addConstraint(Sketcher.Constraint("Horizontal", 2))
sketch17.addConstraint(Sketcher.Constraint("Vertical", 3))
sketch17.addConstraint(Sketcher.Constraint("DistanceX", 0, 2, 0, 1, Q("12.1 mm")))
sketch17.addConstraint(Sketcher.Constraint("DistanceY", 1, 2, 1, 1, Q("9.1 mm")))
sketch17.addConstraint(Sketcher.Constraint("DistanceY", -1, 1, 0, 2, Q("12.7 mm")))
sketch17.addConstraint(Sketcher.Constraint("DistanceX", 0, 2, -1, 1, Q("9.15 mm")))
sketch17.setExpression("Constraints[8]", "Params.sketch17_width")
sketch17.setExpression("Constraints[9]", "Params.sketch17_height")
pocket13 = body.newObject("PartDesign::Pocket", "Pocket012")
pocket13.Profile = sketch17
pocket13.setExpression("Length", "Params.pocket13_length")

sketch18 = body.newObject("Sketcher::SketchObject", "Sketch017")
sketch18.AttachmentSupport = (doc.getObject("XY_Plane"), [""])
sketch18.MapMode = "FlatFace"
sketch18.AttachmentOffset = App.Placement(App.Vector(0, 0, 6.6), App.Rotation())
sketch18.addGeometry(Part.LineSegment(App.Vector(-43, -9, 0), App.Vector(-43, -14, 0)), False)
sketch18.addGeometry(Part.LineSegment(App.Vector(-43, -14, 0), App.Vector(-38, -14, 0)), False)
sketch18.addGeometry(Part.ArcOfCircle(Part.Circle(App.Vector(-38, -9, 0), App.Vector(0, 0, 1), 5), math.radians(-180), math.radians(-90)), False)
sketch18.addGeometry(Part.LineSegment(App.Vector(43, -14, 0), App.Vector(43, -9, 0)), False)
sketch18.addGeometry(Part.ArcOfCircle(Part.Circle(App.Vector(38, -9, 0), App.Vector(0, 0, 1), 5), math.radians(-90), math.radians(0)), False)
sketch18.addGeometry(Part.LineSegment(App.Vector(38, -14, 0), App.Vector(43, -14, 0)), False)
sketch18.addConstraint(Sketcher.Constraint("Coincident", 0, 2, 1, 1))
sketch18.addConstraint(Sketcher.Constraint("Tangent", 1, 2, 2, 2))
sketch18.addConstraint(Sketcher.Constraint("Tangent", 2, 1, 0, 1))
sketch18.addConstraint(Sketcher.Constraint("Tangent", 3, 2, 4, 2))
sketch18.addConstraint(Sketcher.Constraint("Tangent", 4, 1, 5, 1))
sketch18.addConstraint(Sketcher.Constraint("Coincident", 5, 2, 3, 1))
sketch18.addConstraint(Sketcher.Constraint("Vertical", 0))
sketch18.addConstraint(Sketcher.Constraint("Horizontal", 1))
sketch18.addConstraint(Sketcher.Constraint("Vertical", 3))
sketch18.addConstraint(Sketcher.Constraint("Horizontal", 5))
sketch18.addConstraint(Sketcher.Constraint("Equal", 2, 4))
sketch18.addConstraint(Sketcher.Constraint("Symmetric", 2, 3, 4, 3, -2))
sketch18.addConstraint(Sketcher.Constraint("DistanceX", 0, 2, -1, 1, Q("43 mm")))
sketch18.addConstraint(Sketcher.Constraint("DistanceY", 2, 3, -1, 1, Q("9.15 mm")))
sketch18.addConstraint(Sketcher.Constraint("Radius", 2, Q("5.32994 mm")))
pad5 = body.newObject("PartDesign::Pad", "Pad004")
pad5.Profile = sketch18
pad5.setExpression("Length", "Params.pad5_length")

sketch19 = body.newObject("Sketcher::SketchObject", "Sketch018")
sketch19.AttachmentSupport = (doc.getObject("XY_Plane"), [""])
sketch19.MapMode = "FlatFace"
sketch19.AttachmentOffset = App.Placement(App.Vector(0, 0, 3.6), App.Rotation())
sketch19.addGeometry(Part.Circle(App.Vector(45, 11.4, 0), App.Vector(0, 0, 1), 1.7), False)
sketch19.addGeometry(Part.Circle(App.Vector(-45, 11.4, 0), App.Vector(0, 0, 1), 1.7), False)
sketch19.addGeometry(Part.Circle(App.Vector(-45, -20.6, 0), App.Vector(0, 0, 1), 1.7), False)
sketch19.addGeometry(Part.Circle(App.Vector(45, -20.6, 0), App.Vector(0, 0, 1), 1.7), False)
sketch19.addConstraint(Sketcher.Constraint("Equal", 0, 1))
sketch19.addConstraint(Sketcher.Constraint("Equal", 1, 2))
sketch19.addConstraint(Sketcher.Constraint("Equal", 2, 3))
sketch19.addConstraint(Sketcher.Constraint("Symmetric", 0, 3, 1, 3, -2))
sketch19.addConstraint(Sketcher.Constraint("Symmetric", 2, 3, 3, 3, -2))
sketch19.addConstraint(Sketcher.Constraint("Vertical", 1, 3, 2, 3))
sketch19.addConstraint(Sketcher.Constraint("Diameter", 0, Q("3.4 mm")))
sketch19.addConstraint(Sketcher.Constraint("DistanceX", -1, 1, 0, 3, Q("45 mm")))
sketch19.addConstraint(Sketcher.Constraint("DistanceY", 2, 3, 1, 3, Q("32 mm")))
sketch19.addConstraint(Sketcher.Constraint("DistanceY", -1, 1, 0, 3, Q("11.425 mm")))
sketch19.setExpression("Constraints[6]", "Params.sketch19_diameter")
pocket14 = body.newObject("PartDesign::Pocket", "Pocket013")
pocket14.Profile = sketch19
pocket14.setExpression("Length", "Params.pocket14_length")
pocket14.Reversed = True

sketch20 = body.newObject("Sketcher::SketchObject", "Sketch019")
sketch20.AttachmentSupport = (doc.getObject("XY_Plane"), [""])
sketch20.MapMode = "FlatFace"
sketch20.AttachmentOffset = App.Placement(App.Vector(0, 0, 3.6), App.Rotation())
add_polygon(sketch20, [(42, -27), (42, -35), (28, -35), (28, -27)])
add_polygon(sketch20, [(-28, -27), (-28, -35), (-42, -35), (-42, -27)])
sketch20.addConstraint(Sketcher.Constraint("Vertical", 0))
sketch20.addConstraint(Sketcher.Constraint("Horizontal", 1))
sketch20.addConstraint(Sketcher.Constraint("Vertical", 2))
sketch20.addConstraint(Sketcher.Constraint("Horizontal", 3))
sketch20.addConstraint(Sketcher.Constraint("Vertical", 4))
sketch20.addConstraint(Sketcher.Constraint("Horizontal", 5))
sketch20.addConstraint(Sketcher.Constraint("Vertical", 6))
sketch20.addConstraint(Sketcher.Constraint("Horizontal", 7))
sketch20.addConstraint(Sketcher.Constraint("Symmetric", 1, 2, 4, 2, -2))
sketch20.addConstraint(Sketcher.Constraint("Symmetric", 3, 2, 6, 2, -2))
sketch20.addConstraint(Sketcher.Constraint("DistanceX", 1, 2, 1, 1, Q("13.5 mm")))
sketch20.addConstraint(Sketcher.Constraint("DistanceY", 0, 2, 0, 1, Q("7.5 mm")))
sketch20.addConstraint(Sketcher.Constraint("DistanceX", 4, 2, 0, 2, Q("70 mm")))
sketch20.addConstraint(Sketcher.Constraint("DistanceY", 0, 2, -1, 1, Q("34.56 mm")))
sketch20.setExpression("Constraints[18]", "Params.sketch20_width")
sketch20.setExpression("Constraints[19]", "Params.sketch20_height")
pocket15 = body.newObject("PartDesign::Pocket", "Pocket014")
pocket15.Profile = sketch20
pocket15.setExpression("Length", "Params.pocket15_length")
pocket15.Reversed = True

sketch21 = body.newObject("Sketcher::SketchObject", "Sketch020")
sketch21.AttachmentSupport = (doc.getObject("XY_Plane"), [""])
sketch21.MapMode = "FlatFace"
sketch21.AttachmentOffset = App.Placement(App.Vector(0, 0, 10.05), App.Rotation())
add_polygon(sketch21, [(-37, -35), (-29, -35), (-24, -14), (-31, -14)])
add_polygon(sketch21, [(24, -14), (29, -35), (37, -35), (31, -14)])
sketch21.addConstraint(Sketcher.Constraint("Horizontal", 0))
sketch21.addConstraint(Sketcher.Constraint("Horizontal", 2))
sketch21.addConstraint(Sketcher.Constraint("Horizontal", 5))
sketch21.addConstraint(Sketcher.Constraint("Horizontal", 7))
sketch21.addConstraint(Sketcher.Constraint("Symmetric", 0, 2, 4, 2, -2))
sketch21.addConstraint(Sketcher.Constraint("Symmetric", 2, 2, 6, 2, -2))
sketch21.addConstraint(Sketcher.Constraint("Parallel", 1, 3))
sketch21.addConstraint(Sketcher.Constraint("Parallel", 4, 6))
sketch21.addConstraint(Sketcher.Constraint("Equal", 2, 5))
sketch21.addConstraint(Sketcher.Constraint("Angle", 1, Q("75 deg")))
sketch21.addConstraint(Sketcher.Constraint("DistanceY", 0, 2, -1, 1, Q("34.56 mm")))
sketch21.addConstraint(Sketcher.Constraint("DistanceX", 3, 2, -1, 1, Q("36.8158 mm")))
sketch21.addConstraint(Sketcher.Constraint("DistanceX", 1, 2, 4, 2, Q("53.1216 mm")))
sketch21.addConstraint(Sketcher.Constraint("DistanceX", 0, 1, 0, 2, Q("7.564782 mm")))
pocket16 = body.newObject("PartDesign::Pocket", "Pocket015")
pocket16.Profile = sketch21
pocket16.Type = "ThroughAll"

doc.recompute()
